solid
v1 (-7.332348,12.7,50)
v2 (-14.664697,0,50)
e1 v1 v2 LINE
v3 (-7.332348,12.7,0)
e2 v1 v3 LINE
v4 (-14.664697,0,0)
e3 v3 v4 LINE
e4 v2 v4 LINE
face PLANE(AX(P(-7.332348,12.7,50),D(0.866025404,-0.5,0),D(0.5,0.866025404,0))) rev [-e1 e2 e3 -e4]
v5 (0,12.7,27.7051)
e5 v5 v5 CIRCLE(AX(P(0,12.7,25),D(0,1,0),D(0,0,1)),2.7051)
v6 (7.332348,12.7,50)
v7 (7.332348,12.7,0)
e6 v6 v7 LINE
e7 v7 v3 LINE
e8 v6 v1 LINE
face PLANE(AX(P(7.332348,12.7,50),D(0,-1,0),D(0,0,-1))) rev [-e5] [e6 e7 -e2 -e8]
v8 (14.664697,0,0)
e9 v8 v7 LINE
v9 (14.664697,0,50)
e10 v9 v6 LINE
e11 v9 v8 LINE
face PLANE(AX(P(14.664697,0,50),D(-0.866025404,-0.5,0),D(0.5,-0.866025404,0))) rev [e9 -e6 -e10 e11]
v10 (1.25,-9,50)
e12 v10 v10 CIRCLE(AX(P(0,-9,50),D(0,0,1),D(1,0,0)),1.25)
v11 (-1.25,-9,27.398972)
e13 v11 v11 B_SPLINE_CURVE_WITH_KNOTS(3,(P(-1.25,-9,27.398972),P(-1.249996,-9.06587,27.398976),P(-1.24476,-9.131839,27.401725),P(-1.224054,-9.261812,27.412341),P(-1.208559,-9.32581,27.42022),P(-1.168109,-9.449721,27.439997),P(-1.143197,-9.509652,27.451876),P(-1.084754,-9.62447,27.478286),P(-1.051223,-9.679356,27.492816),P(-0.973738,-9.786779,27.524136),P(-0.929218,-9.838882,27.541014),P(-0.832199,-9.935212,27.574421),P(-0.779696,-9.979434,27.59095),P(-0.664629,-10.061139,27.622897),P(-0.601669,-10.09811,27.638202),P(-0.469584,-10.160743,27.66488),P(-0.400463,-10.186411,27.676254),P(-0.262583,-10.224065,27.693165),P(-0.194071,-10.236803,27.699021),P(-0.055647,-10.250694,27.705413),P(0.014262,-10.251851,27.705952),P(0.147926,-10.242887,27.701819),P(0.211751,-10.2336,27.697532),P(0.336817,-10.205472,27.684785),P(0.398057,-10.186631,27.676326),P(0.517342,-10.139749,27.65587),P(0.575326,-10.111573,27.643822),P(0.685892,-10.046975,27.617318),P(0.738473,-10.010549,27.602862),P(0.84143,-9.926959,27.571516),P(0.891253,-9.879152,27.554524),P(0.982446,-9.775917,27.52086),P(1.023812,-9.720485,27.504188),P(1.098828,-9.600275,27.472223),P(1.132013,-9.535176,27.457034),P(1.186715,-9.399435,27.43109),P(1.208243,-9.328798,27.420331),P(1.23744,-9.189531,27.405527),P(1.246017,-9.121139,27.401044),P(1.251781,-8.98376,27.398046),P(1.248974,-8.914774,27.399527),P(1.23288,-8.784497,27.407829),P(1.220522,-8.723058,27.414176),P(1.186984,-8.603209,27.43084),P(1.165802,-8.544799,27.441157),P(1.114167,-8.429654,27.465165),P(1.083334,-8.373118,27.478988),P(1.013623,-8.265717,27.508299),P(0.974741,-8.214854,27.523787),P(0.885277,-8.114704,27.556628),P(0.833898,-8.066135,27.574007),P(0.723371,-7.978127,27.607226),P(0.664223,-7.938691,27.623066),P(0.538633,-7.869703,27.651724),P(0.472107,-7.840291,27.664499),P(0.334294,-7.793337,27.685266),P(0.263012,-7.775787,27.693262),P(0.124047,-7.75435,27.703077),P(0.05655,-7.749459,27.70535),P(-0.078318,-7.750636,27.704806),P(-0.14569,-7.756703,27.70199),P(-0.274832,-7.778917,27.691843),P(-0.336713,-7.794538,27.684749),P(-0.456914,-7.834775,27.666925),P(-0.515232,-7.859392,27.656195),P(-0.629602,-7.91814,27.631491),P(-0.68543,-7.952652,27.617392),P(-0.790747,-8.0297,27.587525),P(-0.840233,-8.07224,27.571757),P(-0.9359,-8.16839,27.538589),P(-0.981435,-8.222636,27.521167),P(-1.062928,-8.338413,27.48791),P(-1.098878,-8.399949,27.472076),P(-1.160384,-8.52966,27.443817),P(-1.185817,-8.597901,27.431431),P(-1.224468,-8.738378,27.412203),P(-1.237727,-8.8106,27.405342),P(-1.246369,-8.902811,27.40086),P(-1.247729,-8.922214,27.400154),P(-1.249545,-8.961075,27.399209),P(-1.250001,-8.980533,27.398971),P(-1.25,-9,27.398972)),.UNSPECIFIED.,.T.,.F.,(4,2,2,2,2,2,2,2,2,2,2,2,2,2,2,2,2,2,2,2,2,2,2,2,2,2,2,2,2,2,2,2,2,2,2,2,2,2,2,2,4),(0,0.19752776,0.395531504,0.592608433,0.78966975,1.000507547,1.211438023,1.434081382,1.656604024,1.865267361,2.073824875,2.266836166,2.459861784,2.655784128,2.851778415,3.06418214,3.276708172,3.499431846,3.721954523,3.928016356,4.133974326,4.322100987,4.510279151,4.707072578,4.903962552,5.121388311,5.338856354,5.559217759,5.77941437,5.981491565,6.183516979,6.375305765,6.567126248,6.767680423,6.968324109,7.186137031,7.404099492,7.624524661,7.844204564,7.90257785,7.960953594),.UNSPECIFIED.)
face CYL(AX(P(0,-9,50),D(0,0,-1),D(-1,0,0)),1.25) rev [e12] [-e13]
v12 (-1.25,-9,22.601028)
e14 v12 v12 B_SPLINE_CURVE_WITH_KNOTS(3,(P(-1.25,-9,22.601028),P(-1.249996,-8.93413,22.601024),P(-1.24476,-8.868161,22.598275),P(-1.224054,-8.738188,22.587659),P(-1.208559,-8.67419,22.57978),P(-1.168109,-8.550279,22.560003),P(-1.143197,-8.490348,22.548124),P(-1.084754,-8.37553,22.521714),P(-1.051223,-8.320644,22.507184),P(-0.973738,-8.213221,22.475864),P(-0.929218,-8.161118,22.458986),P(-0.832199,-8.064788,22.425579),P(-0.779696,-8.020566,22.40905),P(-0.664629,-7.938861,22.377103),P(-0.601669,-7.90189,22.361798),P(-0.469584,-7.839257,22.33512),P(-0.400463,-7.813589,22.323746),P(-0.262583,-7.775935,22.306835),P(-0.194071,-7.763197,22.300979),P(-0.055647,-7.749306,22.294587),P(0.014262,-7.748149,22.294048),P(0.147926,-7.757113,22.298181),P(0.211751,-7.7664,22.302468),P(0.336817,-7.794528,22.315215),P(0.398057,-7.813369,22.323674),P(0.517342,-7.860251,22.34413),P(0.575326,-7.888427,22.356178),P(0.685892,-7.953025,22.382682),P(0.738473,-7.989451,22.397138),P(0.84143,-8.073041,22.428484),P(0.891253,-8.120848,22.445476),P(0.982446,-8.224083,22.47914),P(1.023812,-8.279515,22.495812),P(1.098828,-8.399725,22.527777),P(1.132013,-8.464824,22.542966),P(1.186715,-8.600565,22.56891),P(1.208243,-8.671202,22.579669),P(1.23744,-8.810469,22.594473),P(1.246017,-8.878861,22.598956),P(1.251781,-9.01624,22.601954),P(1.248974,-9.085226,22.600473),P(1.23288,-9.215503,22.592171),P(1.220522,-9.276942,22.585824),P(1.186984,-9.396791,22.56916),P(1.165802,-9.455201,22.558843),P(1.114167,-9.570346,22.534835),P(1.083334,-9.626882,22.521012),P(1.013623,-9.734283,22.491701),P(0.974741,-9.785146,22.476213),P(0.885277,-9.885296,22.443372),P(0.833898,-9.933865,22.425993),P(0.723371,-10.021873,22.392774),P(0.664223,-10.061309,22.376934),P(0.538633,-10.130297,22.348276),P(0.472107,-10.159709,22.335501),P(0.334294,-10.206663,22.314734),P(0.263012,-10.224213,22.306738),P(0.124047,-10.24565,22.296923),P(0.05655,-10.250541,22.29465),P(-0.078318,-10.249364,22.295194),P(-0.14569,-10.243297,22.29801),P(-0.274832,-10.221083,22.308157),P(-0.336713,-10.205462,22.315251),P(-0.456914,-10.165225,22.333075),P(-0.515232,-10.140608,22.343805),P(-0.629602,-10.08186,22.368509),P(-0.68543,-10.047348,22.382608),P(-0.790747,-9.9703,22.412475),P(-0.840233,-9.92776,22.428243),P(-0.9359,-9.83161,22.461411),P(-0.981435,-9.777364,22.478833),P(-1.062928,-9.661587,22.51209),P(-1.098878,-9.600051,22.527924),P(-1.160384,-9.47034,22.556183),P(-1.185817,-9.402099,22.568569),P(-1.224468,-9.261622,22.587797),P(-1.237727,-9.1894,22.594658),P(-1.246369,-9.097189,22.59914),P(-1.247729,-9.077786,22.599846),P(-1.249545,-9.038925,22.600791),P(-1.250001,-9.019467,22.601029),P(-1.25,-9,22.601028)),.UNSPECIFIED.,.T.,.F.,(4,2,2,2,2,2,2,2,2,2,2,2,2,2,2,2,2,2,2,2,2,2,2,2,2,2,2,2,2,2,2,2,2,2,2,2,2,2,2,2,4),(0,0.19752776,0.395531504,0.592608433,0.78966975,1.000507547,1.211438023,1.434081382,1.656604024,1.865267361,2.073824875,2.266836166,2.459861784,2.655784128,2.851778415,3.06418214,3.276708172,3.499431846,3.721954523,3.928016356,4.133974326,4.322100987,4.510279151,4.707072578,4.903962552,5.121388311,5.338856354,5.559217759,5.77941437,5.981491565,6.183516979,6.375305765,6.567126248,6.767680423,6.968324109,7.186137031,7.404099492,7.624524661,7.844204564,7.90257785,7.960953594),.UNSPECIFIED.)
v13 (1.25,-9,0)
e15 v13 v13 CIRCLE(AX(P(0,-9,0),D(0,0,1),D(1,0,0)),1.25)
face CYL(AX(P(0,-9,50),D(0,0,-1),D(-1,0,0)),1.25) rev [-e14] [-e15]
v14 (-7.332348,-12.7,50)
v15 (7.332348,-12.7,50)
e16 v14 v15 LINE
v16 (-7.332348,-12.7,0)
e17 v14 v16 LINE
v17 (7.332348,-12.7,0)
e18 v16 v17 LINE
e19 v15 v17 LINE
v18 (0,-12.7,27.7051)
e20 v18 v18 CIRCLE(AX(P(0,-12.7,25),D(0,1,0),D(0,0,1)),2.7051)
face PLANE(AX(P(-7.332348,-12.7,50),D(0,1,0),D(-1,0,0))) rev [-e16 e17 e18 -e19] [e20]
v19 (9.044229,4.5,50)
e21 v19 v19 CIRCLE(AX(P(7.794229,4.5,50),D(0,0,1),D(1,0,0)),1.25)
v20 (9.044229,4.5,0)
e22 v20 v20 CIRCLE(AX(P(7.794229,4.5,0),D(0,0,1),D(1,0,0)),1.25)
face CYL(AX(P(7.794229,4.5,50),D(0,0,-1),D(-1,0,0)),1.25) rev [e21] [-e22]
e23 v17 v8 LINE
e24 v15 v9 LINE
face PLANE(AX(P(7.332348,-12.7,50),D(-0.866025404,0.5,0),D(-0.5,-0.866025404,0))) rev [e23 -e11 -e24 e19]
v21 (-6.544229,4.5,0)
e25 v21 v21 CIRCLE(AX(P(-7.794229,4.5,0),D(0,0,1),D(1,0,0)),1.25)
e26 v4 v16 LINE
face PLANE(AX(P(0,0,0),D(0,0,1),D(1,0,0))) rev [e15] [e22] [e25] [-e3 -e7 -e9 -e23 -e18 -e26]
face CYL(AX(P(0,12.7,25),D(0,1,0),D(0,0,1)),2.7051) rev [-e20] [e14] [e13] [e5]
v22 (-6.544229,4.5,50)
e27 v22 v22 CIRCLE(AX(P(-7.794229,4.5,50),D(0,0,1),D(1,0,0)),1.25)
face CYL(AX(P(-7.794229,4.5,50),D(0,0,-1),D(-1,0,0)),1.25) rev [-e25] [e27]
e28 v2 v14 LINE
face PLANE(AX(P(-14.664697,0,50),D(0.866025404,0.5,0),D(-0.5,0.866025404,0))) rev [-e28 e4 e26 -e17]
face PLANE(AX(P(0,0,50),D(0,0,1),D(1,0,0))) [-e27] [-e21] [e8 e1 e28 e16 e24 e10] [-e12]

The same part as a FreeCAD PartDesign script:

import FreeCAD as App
import Part
import Sketcher
from FreeCAD import Vector
Q = App.Units.Quantity

doc = App.newDocument("Part")
body = doc.addObject("PartDesign::Body", "Body")

# Sketch on XY plane
sketch1 = body.newObject("Sketcher::SketchObject", "Sketch")
sketch1.AttachmentSupport = (doc.getObject("XY_Plane"), [""])
sketch1.MapMode = "FlatFace"
sketch1.addGeometry(Part.LineSegment(Vector(-7.3, -12.7, 0), Vector(7.3, -12.7, 0)), False)
sketch1.addGeometry(Part.LineSegment(Vector(7.3, -12.7, 0), Vector(14.7, 0, 0)), False)
sketch1.addGeometry(Part.LineSegment(Vector(14.7, 0, 0), Vector(7.3, 12.7, 0)), False)
sketch1.addGeometry(Part.LineSegment(Vector(7.3, 12.7, 0), Vector(-7.3, 12.7, 0)), False)
sketch1.addGeometry(Part.LineSegment(Vector(-7.3, 12.7, 0), Vector(-14.7, 0, 0)), False)
sketch1.addGeometry(Part.LineSegment(Vector(-14.7, 0, 0), Vector(-7.3, -12.7, 0)), False)
sketch1.addGeometry(Part.Circle(Vector(0, -9, 0), Vector(0, 0, 1), 1.2), False)
sketch1.addGeometry(Part.Circle(Vector(-7.8, 4.5, 0), Vector(0, 0, 1), 1.2), False)
sketch1.addGeometry(Part.Circle(Vector(7.8, 4.5, 0), Vector(0, 0, 1), 1.2), False)
sketch1.addConstraint(Sketcher.Constraint("Coincident", 0, 2, 1, 1))
sketch1.addConstraint(Sketcher.Constraint("Coincident", 1, 2, 2, 1))
sketch1.addConstraint(Sketcher.Constraint("Coincident", 2, 2, 3, 1))
sketch1.addConstraint(Sketcher.Constraint("Coincident", 3, 2, 4, 1))
sketch1.addConstraint(Sketcher.Constraint("Coincident", 4, 2, 5, 1))
sketch1.addConstraint(Sketcher.Constraint("Coincident", 5, 2, 0, 1))
sketch1.addConstraint(Sketcher.Constraint("Horizontal", 0))
sketch1.addConstraint(Sketcher.Constraint("Horizontal", 3))
sketch1.addConstraint(Sketcher.Constraint("Equal", 6, 7))
sketch1.addConstraint(Sketcher.Constraint("Equal", 7, 8))
sketch1.addConstraint(Sketcher.Constraint("Symmetric", 0, 2, 3, 2, -1, 1))
sketch1.addConstraint(Sketcher.Constraint("Symmetric", 1, 2, 4, 2, -1, 1))
sketch1.addConstraint(Sketcher.Constraint("Symmetric", 7, 3, 8, 3, -2))
sketch1.addConstraint(Sketcher.Constraint("PointOnObject", 6, 3, -2))
sketch1.addConstraint(Sketcher.Constraint("PointOnObject", 1, 2, -1))
sketch1.addConstraint(Sketcher.Constraint("Parallel", 2, 5))
sketch1.addConstraint(Sketcher.Constraint("Vertical", 0, 2, 2, 2))
sketch1.addConstraint(Sketcher.Constraint("Diameter", 6, 2.5))
sketch1.addConstraint(Sketcher.Constraint("Angle", 1, Q("60 deg")))
sketch1.addConstraint(Sketcher.Constraint("DistanceY", 6, 3, -1, 1, 9.0))
sketch1.addConstraint(Sketcher.Constraint("DistanceY", -1, 1, 7, 3, 4.5))
sketch1.addConstraint(Sketcher.Constraint("DistanceY", 0, 2, -1, 1, 12.7))
sketch1.addConstraint(Sketcher.Constraint("DistanceX", 0, 1, 0, 2, 14.664697))
sketch1.addConstraint(Sketcher.Constraint("DistanceX", 7, 3, -1, 1, 7.794229))
pad1 = body.newObject("PartDesign::Pad", "Pad")
pad1.Profile = sketch1
pad1.Length = 50

# Sketch on XZ plane
sketch2 = body.newObject("Sketcher::SketchObject", "Sketch001")
sketch2.AttachmentSupport = (doc.getObject("XZ_Plane"), [""])
sketch2.MapMode = "FlatFace"
sketch2.AttachmentOffset = App.Placement(Vector(0, 0, -12.7), App.Rotation())
sketch2.addGeometry(Part.Circle(Vector(0, 25, 0), Vector(0, 0, 1), 2.7), False)
sketch2.addConstraint(Sketcher.Constraint("PointOnObject", 0, 3, -2))
sketch2.addConstraint(Sketcher.Constraint("DistanceY", -1, 1, 0, 3, 25.0))
sketch2.addConstraint(Sketcher.Constraint("Diameter", 0, 5.4102))
doc.recompute()
hole = body.newObject("PartDesign::Hole", "Hole")
hole.Profile = sketch2
hole.ThreadType = "None"
hole.Diameter = 5.4102
hole.DepthType = "ThroughAll"
hole.Reversed = True

doc.recompute()
